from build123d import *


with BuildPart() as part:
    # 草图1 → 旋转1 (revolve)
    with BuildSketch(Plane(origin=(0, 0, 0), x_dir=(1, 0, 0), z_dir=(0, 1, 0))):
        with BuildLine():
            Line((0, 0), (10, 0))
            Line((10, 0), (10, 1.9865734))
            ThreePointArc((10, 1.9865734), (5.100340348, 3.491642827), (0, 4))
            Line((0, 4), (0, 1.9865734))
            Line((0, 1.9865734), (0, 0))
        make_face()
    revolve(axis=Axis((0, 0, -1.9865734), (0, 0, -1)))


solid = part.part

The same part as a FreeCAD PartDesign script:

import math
import FreeCAD as App
import Part
import Sketcher
Q = App.Units.Quantity

doc = App.newDocument("Part")
body = doc.addObject("PartDesign::Body", "Body")

# Sketch on XZ plane
sketch1 = body.newObject("Sketcher::SketchObject", "Sketch")
sketch1.AttachmentSupport = (doc.getObject("XZ_Plane"), [""])
sketch1.MapMode = "FlatFace"
sketch1.addGeometry([
    Part.LineSegment(App.Vector(0, 0, 0), App.Vector(10, 0, 0)),
    Part.LineSegment(App.Vector(10, 0, 0), App.Vector(10, -2, 0)),
    Part.ArcOfCircle(Part.Circle(App.Vector(0, 21.8, 0), App.Vector(0, 0, 1), 25.8), math.radians(-90), math.radians(-67)),
    Part.LineSegment(App.Vector(0, -4, 0), App.Vector(0, 0, 0)),
], False)
sketch1.addConstraint([
    Sketcher.Constraint("Coincident", 0, 2, 1, 1),
    Sketcher.Constraint("Coincident", 1, 2, 2, 2),
    Sketcher.Constraint("Coincident", 2, 1, 3, 1),
    Sketcher.Constraint("Coincident", 3, 2, 0, 1),
    Sketcher.Constraint("Horizontal", 0),
    Sketcher.Constraint("Vertical", 1),
    Sketcher.Constraint("Vertical", 3),
    Sketcher.Constraint("Coincident", 3, 2, -1, 1),
    Sketcher.Constraint("PointOnObject", 2, 3, -2),
    Sketcher.Constraint("DistanceX", 0, 1, 0, 2, Q("10 mm")),
    Sketcher.Constraint("DistanceY", 3, 1, 3, 2, Q("4 mm")),
    Sketcher.Constraint("Radius", 2, Q("25.84 mm")),
])
revolution = body.newObject("PartDesign::Revolution", "Revolution")
revolution.Profile = sketch1
revolution.ReferenceAxis = (sketch1, ["V_Axis"])
revolution.Angle = 360

doc.recompute()
